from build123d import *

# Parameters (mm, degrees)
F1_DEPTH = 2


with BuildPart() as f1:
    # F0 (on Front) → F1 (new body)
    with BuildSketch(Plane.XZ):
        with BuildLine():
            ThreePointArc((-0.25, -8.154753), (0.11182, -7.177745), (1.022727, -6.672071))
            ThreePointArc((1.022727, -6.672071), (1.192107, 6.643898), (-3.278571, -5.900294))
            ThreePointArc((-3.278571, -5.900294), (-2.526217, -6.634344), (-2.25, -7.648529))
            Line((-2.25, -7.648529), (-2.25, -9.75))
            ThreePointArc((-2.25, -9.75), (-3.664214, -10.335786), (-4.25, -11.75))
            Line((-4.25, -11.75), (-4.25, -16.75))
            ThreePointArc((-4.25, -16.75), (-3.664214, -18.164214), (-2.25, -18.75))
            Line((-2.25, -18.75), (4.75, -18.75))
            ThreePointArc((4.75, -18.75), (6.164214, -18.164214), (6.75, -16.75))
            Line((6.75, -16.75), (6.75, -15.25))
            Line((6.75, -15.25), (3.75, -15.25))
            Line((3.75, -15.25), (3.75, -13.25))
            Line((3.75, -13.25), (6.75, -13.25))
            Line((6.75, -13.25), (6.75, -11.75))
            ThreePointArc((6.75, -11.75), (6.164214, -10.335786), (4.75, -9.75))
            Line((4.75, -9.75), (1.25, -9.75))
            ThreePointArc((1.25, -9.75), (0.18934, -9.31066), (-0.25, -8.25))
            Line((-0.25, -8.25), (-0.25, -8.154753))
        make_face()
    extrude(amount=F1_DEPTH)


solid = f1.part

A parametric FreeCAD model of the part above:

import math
import FreeCAD as App
import Part
import Sketcher

doc = App.newDocument("Part")
body = doc.addObject("PartDesign::Body", "Body")

sketch1 = doc.addObject("Sketcher::SketchObject", "Sketch")
body.addObject(sketch1)
sketch1.AttachmentSupport = (doc.XZ_Plane, [""])
sketch1.MapMode = "FlatFace"
sketch1.addGeometry([
    Part.ArcOfCircle(Part.Circle(App.Vector(1.25, -8.15, 0), App.Vector(0, 0, 1), 1.5), math.radians(99), math.radians(180)),
    Part.ArcOfCircle(Part.Circle(App.Vector(0, 0, 0), App.Vector(0, 0, 1), 6.75), math.radians(-81), math.radians(241)),
    Part.ArcOfCircle(Part.Circle(App.Vector(-4.25, -7.65, 0), App.Vector(0, 0, 1), 2), math.radians(0), math.radians(61)),
    Part.LineSegment(App.Vector(-2.25, -7.65, 0), App.Vector(-2.25, -9.75, 0)),
    Part.ArcOfCircle(Part.Circle(App.Vector(-2.25, -11.75, 0), App.Vector(0, 0, 1), 2), math.radians(90), math.radians(180)),
    Part.LineSegment(App.Vector(-4.25, -11.75, 0), App.Vector(-4.25, -16.75, 0)),
    Part.ArcOfCircle(Part.Circle(App.Vector(-2.25, -16.75, 0), App.Vector(0, 0, 1), 2), math.radians(180), math.radians(270)),
    Part.LineSegment(App.Vector(-2.25, -18.75, 0), App.Vector(4.75, -18.75, 0)),
    Part.ArcOfCircle(Part.Circle(App.Vector(4.75, -16.75, 0), App.Vector(0, 0, 1), 2), math.radians(-90), math.radians(0)),
    Part.LineSegment(App.Vector(6.75, -16.75, 0), App.Vector(6.75, -15.25, 0)),
    Part.LineSegment(App.Vector(6.75, -15.25, 0), App.Vector(3.75, -15.25, 0)),
    Part.LineSegment(App.Vector(3.75, -15.25, 0), App.Vector(3.75, -13.25, 0)),
    Part.LineSegment(App.Vector(3.75, -13.25, 0), App.Vector(6.75, -13.25, 0)),
    Part.LineSegment(App.Vector(6.75, -13.25, 0), App.Vector(6.75, -11.75, 0)),
    Part.ArcOfCircle(Part.Circle(App.Vector(4.75, -11.75, 0), App.Vector(0, 0, 1), 2), math.radians(0), math.radians(90)),
    Part.LineSegment(App.Vector(4.75, -9.75, 0), App.Vector(1.25, -9.75, 0)),
    Part.ArcOfCircle(Part.Circle(App.Vector(1.25, -8.25, 0), App.Vector(0, 0, 1), 1.5), math.radians(-180), math.radians(-90)),
    Part.LineSegment(App.Vector(-0.25, -8.25, 0), App.Vector(-0.25, -8.15, 0)),
], False)
sketch1.addConstraint([
    Sketcher.Constraint("Tangent", 0, 1, 1, 1),
    Sketcher.Constraint("Tangent", 1, 2, 2, 2),
    Sketcher.Constraint("Tangent", 2, 1, 3, 1),
    Sketcher.Constraint("Coincident", 3, 2, 4, 1),
    Sketcher.Constraint("Tangent", 4, 2, 5, 1),
    Sketcher.Constraint("Tangent", 5, 2, 6, 1),
    Sketcher.Constraint("Tangent", 6, 2, 7, 1),
    Sketcher.Constraint("Tangent", 7, 2, 8, 1),
    Sketcher.Constraint("Tangent", 8, 2, 9, 1),
    Sketcher.Constraint("Coincident", 9, 2, 10, 1),
    Sketcher.Constraint("Coincident", 10, 2, 11, 1),
    Sketcher.Constraint("Coincident", 11, 2, 12, 1),
    Sketcher.Constraint("Coincident", 12, 2, 13, 1),
    Sketcher.Constraint("Tangent", 13, 2, 14, 1),
    Sketcher.Constraint("Tangent", 14, 2, 15, 1),
    Sketcher.Constraint("Tangent", 15, 2, 16, 2),
    Sketcher.Constraint("Tangent", 16, 1, 17, 1),
    Sketcher.Constraint("Tangent", 17, 2, 0, 2),
    Sketcher.Constraint("Vertical", 3),
    Sketcher.Constraint("Vertical", 5),
    Sketcher.Constraint("Horizontal", 7),
    Sketcher.Constraint("Vertical", 9),
    Sketcher.Constraint("Horizontal", 10),
    Sketcher.Constraint("Vertical", 11),
    Sketcher.Constraint("Horizontal", 12),
    Sketcher.Constraint("Vertical", 13),
    Sketcher.Constraint("Horizontal", 15),
    Sketcher.Constraint("Vertical", 17),
    Sketcher.Constraint("Coincident", 1, 3, -1, 1),
    Sketcher.Constraint("Equal", 4, 6),
    Sketcher.Constraint("Equal", 6, 8),
    Sketcher.Constraint("Equal", 8, 14),
    Sketcher.Constraint("Equal", 0, 16),
    Sketcher.Constraint("Horizontal", 4, 3, 14, 3),
    Sketcher.Constraint("Vertical", 8, 3, 14, 3),
    Sketcher.Constraint("Vertical", 6, 3, 2, 1),
    Sketcher.Constraint("Vertical", 2, 3, 4, 2),
    Sketcher.Constraint("Equal", 9, 13),
    Sketcher.Constraint("Radius", 2, 2.000001),
    Sketcher.Constraint("Radius", 0, 1.500001),
    Sketcher.Constraint("DistanceX", 7, 1, 7, 2, 7.0),
    Sketcher.Constraint("DistanceX", 10, 2, 10, 1, 3.0),
    Sketcher.Constraint("DistanceY", 5, 2, 5, 1, 5.0),
    Sketcher.Constraint("DistanceY", 11, 1, 11, 2, 2.0),
    Sketcher.Constraint("Radius", 1, 6.75),
    Sketcher.Constraint("DistanceX", 15, 2, 15, 1, 3.5),
    Sketcher.Constraint("DistanceX", -1, 1, 0, 3, 1.250001),
    Sketcher.Constraint("DistanceY", 4, 3, -1, 1, 11.749999),
])
pad1 = doc.addObject("PartDesign::Pad", "Pad")
body.addObject(pad1)
pad1.Profile = sketch1
pad1.Length = 2

doc.recompute()
